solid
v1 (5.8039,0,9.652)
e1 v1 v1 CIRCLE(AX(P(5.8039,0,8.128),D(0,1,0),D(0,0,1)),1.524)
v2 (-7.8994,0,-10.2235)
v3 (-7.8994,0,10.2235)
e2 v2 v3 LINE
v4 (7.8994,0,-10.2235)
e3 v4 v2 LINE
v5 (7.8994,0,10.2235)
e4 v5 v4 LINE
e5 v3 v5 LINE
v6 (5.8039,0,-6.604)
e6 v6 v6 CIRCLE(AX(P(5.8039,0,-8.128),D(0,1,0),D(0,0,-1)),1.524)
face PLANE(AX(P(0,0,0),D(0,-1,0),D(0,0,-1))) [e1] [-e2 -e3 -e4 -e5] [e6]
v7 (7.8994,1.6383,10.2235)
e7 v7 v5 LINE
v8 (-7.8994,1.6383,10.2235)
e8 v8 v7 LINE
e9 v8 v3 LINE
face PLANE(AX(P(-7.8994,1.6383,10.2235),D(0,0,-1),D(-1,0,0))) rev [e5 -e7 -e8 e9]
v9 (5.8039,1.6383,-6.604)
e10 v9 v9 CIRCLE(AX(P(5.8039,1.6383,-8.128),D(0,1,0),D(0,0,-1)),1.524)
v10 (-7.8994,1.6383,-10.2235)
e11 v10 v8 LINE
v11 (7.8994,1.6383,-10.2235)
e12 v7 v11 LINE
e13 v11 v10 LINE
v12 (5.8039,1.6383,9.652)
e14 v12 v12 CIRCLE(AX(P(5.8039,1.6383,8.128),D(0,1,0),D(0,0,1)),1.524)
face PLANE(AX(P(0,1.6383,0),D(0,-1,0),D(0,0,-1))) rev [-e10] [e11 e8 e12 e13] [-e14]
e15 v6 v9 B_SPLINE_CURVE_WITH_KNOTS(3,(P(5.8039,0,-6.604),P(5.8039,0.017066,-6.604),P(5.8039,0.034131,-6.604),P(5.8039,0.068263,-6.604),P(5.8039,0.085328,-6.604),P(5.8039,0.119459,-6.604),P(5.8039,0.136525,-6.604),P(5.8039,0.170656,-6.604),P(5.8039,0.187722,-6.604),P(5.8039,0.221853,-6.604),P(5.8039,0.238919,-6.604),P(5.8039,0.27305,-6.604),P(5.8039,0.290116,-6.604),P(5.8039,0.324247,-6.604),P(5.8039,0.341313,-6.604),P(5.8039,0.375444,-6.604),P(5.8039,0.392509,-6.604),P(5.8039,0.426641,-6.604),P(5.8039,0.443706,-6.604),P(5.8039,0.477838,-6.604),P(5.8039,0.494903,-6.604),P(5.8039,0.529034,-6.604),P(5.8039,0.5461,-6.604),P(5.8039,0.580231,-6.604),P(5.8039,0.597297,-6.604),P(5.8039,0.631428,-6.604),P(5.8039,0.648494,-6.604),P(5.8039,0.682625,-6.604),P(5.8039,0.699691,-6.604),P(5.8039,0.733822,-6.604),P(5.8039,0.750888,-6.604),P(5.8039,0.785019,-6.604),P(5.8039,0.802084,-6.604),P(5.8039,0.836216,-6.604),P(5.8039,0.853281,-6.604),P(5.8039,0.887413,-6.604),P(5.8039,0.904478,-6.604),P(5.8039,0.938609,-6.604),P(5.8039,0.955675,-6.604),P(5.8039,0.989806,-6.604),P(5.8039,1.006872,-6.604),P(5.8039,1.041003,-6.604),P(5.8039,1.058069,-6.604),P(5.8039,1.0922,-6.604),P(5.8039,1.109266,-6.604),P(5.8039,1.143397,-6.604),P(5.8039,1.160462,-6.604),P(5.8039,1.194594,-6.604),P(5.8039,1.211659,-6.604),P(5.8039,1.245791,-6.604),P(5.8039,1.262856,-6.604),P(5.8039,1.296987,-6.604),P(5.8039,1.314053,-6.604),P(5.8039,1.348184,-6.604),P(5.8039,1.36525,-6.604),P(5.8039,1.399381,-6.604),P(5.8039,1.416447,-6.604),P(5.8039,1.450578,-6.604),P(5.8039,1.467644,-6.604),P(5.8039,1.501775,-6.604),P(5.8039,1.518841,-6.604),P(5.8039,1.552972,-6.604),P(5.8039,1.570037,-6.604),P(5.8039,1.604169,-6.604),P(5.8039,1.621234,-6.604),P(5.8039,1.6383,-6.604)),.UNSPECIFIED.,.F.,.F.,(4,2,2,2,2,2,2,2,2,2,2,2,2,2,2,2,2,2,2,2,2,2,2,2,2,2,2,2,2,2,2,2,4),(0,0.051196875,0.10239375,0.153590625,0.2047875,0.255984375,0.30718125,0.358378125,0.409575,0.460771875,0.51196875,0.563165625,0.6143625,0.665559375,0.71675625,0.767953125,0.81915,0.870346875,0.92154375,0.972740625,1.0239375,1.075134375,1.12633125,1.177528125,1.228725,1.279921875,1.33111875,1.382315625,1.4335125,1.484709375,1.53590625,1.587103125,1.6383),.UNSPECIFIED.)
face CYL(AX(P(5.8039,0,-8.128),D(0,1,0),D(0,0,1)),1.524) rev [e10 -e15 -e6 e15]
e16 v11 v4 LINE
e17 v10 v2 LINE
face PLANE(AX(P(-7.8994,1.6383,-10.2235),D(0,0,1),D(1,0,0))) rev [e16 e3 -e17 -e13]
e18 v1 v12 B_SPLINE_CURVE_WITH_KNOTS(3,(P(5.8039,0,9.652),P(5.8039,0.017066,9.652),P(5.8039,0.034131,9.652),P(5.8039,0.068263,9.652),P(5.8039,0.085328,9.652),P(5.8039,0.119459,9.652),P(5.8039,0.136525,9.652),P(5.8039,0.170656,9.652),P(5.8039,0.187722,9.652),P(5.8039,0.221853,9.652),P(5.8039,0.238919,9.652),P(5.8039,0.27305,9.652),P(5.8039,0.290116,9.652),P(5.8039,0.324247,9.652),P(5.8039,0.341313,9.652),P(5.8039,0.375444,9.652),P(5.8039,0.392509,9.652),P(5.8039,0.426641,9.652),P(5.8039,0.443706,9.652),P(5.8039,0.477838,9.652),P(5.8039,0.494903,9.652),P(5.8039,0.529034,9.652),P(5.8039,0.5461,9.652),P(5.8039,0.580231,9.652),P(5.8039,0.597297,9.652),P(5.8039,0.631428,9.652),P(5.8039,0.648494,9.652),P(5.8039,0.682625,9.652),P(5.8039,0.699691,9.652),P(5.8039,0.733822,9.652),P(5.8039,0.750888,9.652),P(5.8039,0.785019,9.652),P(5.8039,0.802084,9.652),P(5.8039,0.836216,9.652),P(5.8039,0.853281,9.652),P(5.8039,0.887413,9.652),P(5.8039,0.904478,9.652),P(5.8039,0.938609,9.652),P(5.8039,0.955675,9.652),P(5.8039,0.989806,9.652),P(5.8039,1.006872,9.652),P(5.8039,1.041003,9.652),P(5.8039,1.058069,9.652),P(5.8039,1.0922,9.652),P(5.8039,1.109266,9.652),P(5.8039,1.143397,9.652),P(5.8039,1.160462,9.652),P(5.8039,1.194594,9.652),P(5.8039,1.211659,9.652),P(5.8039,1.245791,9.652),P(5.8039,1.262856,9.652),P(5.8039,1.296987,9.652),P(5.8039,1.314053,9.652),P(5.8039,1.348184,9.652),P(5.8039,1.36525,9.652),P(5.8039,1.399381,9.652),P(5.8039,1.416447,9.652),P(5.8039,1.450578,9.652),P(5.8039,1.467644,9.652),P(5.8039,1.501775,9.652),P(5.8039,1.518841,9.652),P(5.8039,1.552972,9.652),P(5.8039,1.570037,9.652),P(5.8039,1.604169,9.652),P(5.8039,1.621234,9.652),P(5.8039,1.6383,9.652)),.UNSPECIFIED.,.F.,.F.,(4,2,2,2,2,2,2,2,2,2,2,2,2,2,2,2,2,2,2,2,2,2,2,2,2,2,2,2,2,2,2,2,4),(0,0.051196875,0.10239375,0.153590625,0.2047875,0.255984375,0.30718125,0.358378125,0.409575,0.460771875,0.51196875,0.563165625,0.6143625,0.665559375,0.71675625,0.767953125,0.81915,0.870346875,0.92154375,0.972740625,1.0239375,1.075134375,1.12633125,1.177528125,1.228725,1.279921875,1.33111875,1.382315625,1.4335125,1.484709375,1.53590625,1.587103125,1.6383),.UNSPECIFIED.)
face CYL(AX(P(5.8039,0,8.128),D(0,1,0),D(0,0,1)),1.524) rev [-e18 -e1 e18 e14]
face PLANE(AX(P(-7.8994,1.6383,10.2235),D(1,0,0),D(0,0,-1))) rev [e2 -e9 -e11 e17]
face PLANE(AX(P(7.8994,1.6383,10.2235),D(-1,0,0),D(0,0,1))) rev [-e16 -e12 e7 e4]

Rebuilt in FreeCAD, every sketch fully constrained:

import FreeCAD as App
import Part
import Sketcher

V = App.Vector
Q = App.Units.Quantity

doc = App.newDocument("Part")
body = doc.addObject("PartDesign::Body", "Body")

# Sketch on XZ plane
sketch1 = body.newObject("Sketcher::SketchObject", "Sketch")
sketch1.AttachmentSupport = (doc.getObject("XZ_Plane"), [""])
sketch1.MapMode = "FlatFace"
sketch1.addGeometry([
    Part.LineSegment(V(-8, -10, 0), V(-8, 10, 0)),
    Part.LineSegment(V(-8, 10, 0), V(8, 10, 0)),
    Part.LineSegment(V(8, 10, 0), V(8, -10, 0)),
    Part.LineSegment(V(8, -10, 0), V(-8, -10, 0)),
], False)
sketch1.addConstraint([
    Sketcher.Constraint("Coincident", 0, 2, 1, 1),
    Sketcher.Constraint("Coincident", 1, 2, 2, 1),
    Sketcher.Constraint("Coincident", 2, 2, 3, 1),
    Sketcher.Constraint("Coincident", 3, 2, 0, 1),
    Sketcher.Constraint("Vertical", 0),
    Sketcher.Constraint("Horizontal", 1),
    Sketcher.Constraint("Vertical", 2),
    Sketcher.Constraint("Horizontal", 3),
    Sketcher.Constraint("Symmetric", 0, 2, 2, 2, -1, 1),
    Sketcher.Constraint("DistanceX", 1, 1, 1, 2, Q("0.622 in")),
    Sketcher.Constraint("DistanceY", 0, 1, 0, 2, Q("0.805 in")),
])
pad1 = body.newObject("PartDesign::Pad", "Pad")
pad1.Profile = sketch1
pad1.Length = Q("0.0645 in")
pad1.Reversed = True

# Sketch on XZ plane
sketch2 = body.newObject("Sketcher::SketchObject", "Sketch001")
sketch2.AttachmentSupport = (doc.getObject("XZ_Plane"), [""])
sketch2.MapMode = "FlatFace"
sketch2.AttachmentOffset = App.Placement(V(0, 0, -0.0645 * 25.4), App.Rotation())
sketch2.addGeometry([
    Part.Circle(V(5.8, 8.1, 0), V(0, 0, 1), 1.5),
    Part.Circle(V(5.8, -8.1, 0), V(0, 0, 1), 1.5),
], False)
sketch2.addConstraint([
    Sketcher.Constraint("Equal", 0, 1),
    Sketcher.Constraint("Symmetric", 0, 3, 1, 3, -1),
    Sketcher.Constraint("Diameter", 0, Q("0.12 in")),
    Sketcher.Constraint("DistanceY", -1, 1, 0, 3, Q("0.32 in")),
    Sketcher.Constraint("DistanceX", -1, 1, 0, 3, Q("0.2285 in")),
])
pocket1 = body.newObject("PartDesign::Pocket", "Pocket")
pocket1.Profile = sketch2
pocket1.Length = Q("0.0645 in")
pocket1.Reversed = True

doc.recompute()
